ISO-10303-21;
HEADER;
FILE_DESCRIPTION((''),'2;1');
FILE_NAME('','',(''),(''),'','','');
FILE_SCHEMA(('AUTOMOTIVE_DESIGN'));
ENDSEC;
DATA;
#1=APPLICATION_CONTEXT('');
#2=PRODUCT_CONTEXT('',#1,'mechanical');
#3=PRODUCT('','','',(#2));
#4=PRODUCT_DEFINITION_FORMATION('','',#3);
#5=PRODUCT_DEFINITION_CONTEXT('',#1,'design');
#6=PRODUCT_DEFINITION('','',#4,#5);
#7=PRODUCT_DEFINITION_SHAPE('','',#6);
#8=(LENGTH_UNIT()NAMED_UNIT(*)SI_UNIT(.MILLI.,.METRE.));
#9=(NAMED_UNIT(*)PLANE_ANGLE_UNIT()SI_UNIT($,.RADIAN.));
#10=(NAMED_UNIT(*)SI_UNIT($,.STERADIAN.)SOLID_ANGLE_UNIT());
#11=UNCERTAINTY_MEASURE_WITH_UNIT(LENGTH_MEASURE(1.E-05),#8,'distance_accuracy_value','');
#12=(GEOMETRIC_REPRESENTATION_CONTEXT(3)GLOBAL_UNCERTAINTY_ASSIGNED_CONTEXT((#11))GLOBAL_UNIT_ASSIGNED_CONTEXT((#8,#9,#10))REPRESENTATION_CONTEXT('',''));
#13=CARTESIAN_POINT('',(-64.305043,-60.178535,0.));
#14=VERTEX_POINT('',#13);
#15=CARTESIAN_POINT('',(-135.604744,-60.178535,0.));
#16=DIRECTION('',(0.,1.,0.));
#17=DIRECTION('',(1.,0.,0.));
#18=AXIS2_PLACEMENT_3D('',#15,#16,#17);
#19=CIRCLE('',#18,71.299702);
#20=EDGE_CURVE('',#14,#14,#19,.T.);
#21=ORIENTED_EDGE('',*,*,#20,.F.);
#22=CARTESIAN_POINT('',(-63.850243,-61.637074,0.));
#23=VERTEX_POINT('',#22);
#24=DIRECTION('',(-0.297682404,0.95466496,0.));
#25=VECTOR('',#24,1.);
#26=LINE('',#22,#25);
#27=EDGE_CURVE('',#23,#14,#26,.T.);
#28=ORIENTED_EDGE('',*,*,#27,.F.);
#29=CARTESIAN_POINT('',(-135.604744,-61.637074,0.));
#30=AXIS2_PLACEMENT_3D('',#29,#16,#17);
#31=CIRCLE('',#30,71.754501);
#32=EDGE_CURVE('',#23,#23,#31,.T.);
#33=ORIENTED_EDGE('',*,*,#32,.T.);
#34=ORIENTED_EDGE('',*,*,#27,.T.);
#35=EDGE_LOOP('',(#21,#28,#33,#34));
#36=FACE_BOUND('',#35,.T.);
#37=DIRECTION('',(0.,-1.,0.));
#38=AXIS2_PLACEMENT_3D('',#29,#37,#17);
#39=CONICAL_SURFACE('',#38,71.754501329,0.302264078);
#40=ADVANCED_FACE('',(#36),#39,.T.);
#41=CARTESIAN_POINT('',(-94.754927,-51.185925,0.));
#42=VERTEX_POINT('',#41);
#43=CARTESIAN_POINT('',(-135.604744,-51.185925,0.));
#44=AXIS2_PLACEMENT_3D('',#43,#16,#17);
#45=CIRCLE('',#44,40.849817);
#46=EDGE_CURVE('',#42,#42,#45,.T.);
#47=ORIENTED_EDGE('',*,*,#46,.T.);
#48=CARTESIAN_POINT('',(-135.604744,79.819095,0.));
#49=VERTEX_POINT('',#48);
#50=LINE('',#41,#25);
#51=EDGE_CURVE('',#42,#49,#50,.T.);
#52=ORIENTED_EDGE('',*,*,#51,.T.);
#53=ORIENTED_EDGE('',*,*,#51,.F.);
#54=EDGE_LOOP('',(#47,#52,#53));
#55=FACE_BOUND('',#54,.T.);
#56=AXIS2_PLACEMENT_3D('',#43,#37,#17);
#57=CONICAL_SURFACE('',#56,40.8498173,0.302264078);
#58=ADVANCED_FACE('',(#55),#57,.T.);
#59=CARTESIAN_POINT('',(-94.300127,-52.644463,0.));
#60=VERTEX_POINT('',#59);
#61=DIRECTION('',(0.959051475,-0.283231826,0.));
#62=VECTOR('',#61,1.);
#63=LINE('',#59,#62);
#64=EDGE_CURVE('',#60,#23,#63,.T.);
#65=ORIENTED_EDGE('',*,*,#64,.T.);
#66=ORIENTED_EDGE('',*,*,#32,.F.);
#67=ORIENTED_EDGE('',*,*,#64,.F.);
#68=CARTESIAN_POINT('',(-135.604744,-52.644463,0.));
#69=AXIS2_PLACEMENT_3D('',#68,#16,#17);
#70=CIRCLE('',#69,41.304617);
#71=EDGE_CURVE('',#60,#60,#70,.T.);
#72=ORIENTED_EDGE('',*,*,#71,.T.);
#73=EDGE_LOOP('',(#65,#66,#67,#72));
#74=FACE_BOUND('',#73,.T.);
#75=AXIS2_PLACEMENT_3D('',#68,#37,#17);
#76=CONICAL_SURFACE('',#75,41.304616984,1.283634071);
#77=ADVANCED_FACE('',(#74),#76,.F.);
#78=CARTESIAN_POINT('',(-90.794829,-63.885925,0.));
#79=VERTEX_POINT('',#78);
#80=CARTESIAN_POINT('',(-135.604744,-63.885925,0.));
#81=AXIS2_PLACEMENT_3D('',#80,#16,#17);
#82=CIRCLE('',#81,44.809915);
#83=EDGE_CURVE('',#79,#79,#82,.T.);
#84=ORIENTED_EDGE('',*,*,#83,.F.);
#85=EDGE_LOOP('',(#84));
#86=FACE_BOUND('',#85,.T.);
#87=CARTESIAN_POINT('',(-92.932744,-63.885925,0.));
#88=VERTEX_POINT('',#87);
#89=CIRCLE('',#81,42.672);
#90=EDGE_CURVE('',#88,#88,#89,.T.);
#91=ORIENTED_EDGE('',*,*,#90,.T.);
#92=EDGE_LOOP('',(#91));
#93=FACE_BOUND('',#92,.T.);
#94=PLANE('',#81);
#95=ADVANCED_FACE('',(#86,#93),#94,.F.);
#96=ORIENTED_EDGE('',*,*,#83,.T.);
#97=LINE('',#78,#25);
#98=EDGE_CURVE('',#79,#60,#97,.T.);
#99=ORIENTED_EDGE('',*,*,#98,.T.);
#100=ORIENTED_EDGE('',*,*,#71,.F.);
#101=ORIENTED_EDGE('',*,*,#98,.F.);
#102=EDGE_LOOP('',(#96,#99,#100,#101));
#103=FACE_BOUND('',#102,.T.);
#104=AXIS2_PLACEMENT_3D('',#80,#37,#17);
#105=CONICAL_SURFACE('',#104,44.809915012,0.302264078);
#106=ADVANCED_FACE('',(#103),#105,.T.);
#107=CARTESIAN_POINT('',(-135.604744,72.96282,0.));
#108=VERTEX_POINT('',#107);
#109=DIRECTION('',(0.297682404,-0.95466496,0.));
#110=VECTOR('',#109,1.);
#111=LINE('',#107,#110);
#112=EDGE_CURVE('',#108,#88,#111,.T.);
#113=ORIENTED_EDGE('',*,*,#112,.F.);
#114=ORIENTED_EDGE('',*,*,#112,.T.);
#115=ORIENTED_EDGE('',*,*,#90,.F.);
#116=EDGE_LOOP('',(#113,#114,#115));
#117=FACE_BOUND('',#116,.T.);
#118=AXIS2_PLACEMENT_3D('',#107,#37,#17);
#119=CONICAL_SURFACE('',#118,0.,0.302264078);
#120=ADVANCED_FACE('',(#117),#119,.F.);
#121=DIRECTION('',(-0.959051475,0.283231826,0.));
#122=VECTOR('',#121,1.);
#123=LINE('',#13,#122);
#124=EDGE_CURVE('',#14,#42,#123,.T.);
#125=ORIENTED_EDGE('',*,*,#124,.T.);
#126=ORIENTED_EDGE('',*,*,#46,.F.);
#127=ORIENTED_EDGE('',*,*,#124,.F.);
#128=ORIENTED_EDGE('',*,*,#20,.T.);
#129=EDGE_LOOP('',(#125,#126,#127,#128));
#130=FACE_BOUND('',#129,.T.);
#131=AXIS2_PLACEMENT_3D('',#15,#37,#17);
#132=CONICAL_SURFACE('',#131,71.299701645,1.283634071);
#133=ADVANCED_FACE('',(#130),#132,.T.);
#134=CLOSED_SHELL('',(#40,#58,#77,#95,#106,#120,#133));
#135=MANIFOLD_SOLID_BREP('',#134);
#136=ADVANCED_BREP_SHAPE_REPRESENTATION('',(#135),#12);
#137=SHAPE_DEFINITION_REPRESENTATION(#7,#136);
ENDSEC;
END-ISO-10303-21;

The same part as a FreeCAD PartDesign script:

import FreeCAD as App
import Part
import Sketcher
Q = App.Units.Quantity


def add_polygon(sketch, points):
    """Adds a closed chain of lines whose ends are joined by coincident constraints."""
    first, n = sketch.GeometryCount, len(points)
    for a, b in zip(points, points[1:] + points[:1]):
        sketch.addGeometry(Part.LineSegment(App.Vector(*a, 0), App.Vector(*b, 0)), False)
    for i in range(n):
        sketch.addConstraint(Sketcher.Constraint("Coincident", first + i, 2, first + (i + 1) % n, 1))

doc = App.newDocument("Part")
body = doc.addObject("PartDesign::Body", "Body")

sketch1 = body.newObject("Sketcher::SketchObject", "Sketch")
sketch1.AttachmentSupport = (doc.getObject("XY_Plane"), [""])
sketch1.MapMode = "FlatFace"
add_polygon(sketch1, [(-135.6, 79.8), (-135.6, 73), (-92.9, -63.9), (-90.8, -63.9), (-94.3, -52.6), (-63.9, -61.6), (-64.3, -60.2), (-94.8, -51.2)])
sketch1.addGeometry(Part.LineSegment(App.Vector(-135.6, -63.9, 0), App.Vector(-135.6, 79.8, 0)), True)
sketch1.addConstraint([
    Sketcher.Constraint("Vertical", 0),
    Sketcher.Constraint("Horizontal", 2),
    Sketcher.Constraint("Vertical", 8),
    Sketcher.Constraint("Coincident", 8, 2, 7, 2),
    Sketcher.Constraint("Parallel", 1, 3),
    Sketcher.Constraint("Parallel", 3, 5),
    Sketcher.Constraint("Parallel", 4, 6),
    Sketcher.Constraint("Parallel", 5, 7),
    Sketcher.Constraint("Horizontal", 2, 2, 8, 1),
    Sketcher.Constraint("Equal", 4, 6),
    Sketcher.Constraint("DistanceY", 1, 2, 6, 2, Q("0.5 in")),
    Sketcher.Constraint("Distance", 4, Q("1.25 in")),
    Sketcher.Constraint("DistanceX", 0, 2, 1, 2, Q("1.68 in")),
    Sketcher.Constraint("Distance", 5, 1.527802),
    Sketcher.Constraint("DistanceY", 8, 1, 8, 2, 143.70502),
    Sketcher.Constraint("DistanceX", 3, 2, 2, 2, 3.505298),
    Sketcher.Constraint("DistanceX", 1, 2, 4, 2, 29.082501),
    Sketcher.Constraint("DistanceY", -1, 1, 0, 2, 72.96282),
    Sketcher.Constraint("DistanceX", 2, 2, -1, 1, 90.794829),
])
revolution = body.newObject("PartDesign::Revolution", "Revolution")
revolution.Profile = sketch1
revolution.ReferenceAxis = (sketch1, ["Axis0"])
revolution.Angle = 360

doc.recompute()
